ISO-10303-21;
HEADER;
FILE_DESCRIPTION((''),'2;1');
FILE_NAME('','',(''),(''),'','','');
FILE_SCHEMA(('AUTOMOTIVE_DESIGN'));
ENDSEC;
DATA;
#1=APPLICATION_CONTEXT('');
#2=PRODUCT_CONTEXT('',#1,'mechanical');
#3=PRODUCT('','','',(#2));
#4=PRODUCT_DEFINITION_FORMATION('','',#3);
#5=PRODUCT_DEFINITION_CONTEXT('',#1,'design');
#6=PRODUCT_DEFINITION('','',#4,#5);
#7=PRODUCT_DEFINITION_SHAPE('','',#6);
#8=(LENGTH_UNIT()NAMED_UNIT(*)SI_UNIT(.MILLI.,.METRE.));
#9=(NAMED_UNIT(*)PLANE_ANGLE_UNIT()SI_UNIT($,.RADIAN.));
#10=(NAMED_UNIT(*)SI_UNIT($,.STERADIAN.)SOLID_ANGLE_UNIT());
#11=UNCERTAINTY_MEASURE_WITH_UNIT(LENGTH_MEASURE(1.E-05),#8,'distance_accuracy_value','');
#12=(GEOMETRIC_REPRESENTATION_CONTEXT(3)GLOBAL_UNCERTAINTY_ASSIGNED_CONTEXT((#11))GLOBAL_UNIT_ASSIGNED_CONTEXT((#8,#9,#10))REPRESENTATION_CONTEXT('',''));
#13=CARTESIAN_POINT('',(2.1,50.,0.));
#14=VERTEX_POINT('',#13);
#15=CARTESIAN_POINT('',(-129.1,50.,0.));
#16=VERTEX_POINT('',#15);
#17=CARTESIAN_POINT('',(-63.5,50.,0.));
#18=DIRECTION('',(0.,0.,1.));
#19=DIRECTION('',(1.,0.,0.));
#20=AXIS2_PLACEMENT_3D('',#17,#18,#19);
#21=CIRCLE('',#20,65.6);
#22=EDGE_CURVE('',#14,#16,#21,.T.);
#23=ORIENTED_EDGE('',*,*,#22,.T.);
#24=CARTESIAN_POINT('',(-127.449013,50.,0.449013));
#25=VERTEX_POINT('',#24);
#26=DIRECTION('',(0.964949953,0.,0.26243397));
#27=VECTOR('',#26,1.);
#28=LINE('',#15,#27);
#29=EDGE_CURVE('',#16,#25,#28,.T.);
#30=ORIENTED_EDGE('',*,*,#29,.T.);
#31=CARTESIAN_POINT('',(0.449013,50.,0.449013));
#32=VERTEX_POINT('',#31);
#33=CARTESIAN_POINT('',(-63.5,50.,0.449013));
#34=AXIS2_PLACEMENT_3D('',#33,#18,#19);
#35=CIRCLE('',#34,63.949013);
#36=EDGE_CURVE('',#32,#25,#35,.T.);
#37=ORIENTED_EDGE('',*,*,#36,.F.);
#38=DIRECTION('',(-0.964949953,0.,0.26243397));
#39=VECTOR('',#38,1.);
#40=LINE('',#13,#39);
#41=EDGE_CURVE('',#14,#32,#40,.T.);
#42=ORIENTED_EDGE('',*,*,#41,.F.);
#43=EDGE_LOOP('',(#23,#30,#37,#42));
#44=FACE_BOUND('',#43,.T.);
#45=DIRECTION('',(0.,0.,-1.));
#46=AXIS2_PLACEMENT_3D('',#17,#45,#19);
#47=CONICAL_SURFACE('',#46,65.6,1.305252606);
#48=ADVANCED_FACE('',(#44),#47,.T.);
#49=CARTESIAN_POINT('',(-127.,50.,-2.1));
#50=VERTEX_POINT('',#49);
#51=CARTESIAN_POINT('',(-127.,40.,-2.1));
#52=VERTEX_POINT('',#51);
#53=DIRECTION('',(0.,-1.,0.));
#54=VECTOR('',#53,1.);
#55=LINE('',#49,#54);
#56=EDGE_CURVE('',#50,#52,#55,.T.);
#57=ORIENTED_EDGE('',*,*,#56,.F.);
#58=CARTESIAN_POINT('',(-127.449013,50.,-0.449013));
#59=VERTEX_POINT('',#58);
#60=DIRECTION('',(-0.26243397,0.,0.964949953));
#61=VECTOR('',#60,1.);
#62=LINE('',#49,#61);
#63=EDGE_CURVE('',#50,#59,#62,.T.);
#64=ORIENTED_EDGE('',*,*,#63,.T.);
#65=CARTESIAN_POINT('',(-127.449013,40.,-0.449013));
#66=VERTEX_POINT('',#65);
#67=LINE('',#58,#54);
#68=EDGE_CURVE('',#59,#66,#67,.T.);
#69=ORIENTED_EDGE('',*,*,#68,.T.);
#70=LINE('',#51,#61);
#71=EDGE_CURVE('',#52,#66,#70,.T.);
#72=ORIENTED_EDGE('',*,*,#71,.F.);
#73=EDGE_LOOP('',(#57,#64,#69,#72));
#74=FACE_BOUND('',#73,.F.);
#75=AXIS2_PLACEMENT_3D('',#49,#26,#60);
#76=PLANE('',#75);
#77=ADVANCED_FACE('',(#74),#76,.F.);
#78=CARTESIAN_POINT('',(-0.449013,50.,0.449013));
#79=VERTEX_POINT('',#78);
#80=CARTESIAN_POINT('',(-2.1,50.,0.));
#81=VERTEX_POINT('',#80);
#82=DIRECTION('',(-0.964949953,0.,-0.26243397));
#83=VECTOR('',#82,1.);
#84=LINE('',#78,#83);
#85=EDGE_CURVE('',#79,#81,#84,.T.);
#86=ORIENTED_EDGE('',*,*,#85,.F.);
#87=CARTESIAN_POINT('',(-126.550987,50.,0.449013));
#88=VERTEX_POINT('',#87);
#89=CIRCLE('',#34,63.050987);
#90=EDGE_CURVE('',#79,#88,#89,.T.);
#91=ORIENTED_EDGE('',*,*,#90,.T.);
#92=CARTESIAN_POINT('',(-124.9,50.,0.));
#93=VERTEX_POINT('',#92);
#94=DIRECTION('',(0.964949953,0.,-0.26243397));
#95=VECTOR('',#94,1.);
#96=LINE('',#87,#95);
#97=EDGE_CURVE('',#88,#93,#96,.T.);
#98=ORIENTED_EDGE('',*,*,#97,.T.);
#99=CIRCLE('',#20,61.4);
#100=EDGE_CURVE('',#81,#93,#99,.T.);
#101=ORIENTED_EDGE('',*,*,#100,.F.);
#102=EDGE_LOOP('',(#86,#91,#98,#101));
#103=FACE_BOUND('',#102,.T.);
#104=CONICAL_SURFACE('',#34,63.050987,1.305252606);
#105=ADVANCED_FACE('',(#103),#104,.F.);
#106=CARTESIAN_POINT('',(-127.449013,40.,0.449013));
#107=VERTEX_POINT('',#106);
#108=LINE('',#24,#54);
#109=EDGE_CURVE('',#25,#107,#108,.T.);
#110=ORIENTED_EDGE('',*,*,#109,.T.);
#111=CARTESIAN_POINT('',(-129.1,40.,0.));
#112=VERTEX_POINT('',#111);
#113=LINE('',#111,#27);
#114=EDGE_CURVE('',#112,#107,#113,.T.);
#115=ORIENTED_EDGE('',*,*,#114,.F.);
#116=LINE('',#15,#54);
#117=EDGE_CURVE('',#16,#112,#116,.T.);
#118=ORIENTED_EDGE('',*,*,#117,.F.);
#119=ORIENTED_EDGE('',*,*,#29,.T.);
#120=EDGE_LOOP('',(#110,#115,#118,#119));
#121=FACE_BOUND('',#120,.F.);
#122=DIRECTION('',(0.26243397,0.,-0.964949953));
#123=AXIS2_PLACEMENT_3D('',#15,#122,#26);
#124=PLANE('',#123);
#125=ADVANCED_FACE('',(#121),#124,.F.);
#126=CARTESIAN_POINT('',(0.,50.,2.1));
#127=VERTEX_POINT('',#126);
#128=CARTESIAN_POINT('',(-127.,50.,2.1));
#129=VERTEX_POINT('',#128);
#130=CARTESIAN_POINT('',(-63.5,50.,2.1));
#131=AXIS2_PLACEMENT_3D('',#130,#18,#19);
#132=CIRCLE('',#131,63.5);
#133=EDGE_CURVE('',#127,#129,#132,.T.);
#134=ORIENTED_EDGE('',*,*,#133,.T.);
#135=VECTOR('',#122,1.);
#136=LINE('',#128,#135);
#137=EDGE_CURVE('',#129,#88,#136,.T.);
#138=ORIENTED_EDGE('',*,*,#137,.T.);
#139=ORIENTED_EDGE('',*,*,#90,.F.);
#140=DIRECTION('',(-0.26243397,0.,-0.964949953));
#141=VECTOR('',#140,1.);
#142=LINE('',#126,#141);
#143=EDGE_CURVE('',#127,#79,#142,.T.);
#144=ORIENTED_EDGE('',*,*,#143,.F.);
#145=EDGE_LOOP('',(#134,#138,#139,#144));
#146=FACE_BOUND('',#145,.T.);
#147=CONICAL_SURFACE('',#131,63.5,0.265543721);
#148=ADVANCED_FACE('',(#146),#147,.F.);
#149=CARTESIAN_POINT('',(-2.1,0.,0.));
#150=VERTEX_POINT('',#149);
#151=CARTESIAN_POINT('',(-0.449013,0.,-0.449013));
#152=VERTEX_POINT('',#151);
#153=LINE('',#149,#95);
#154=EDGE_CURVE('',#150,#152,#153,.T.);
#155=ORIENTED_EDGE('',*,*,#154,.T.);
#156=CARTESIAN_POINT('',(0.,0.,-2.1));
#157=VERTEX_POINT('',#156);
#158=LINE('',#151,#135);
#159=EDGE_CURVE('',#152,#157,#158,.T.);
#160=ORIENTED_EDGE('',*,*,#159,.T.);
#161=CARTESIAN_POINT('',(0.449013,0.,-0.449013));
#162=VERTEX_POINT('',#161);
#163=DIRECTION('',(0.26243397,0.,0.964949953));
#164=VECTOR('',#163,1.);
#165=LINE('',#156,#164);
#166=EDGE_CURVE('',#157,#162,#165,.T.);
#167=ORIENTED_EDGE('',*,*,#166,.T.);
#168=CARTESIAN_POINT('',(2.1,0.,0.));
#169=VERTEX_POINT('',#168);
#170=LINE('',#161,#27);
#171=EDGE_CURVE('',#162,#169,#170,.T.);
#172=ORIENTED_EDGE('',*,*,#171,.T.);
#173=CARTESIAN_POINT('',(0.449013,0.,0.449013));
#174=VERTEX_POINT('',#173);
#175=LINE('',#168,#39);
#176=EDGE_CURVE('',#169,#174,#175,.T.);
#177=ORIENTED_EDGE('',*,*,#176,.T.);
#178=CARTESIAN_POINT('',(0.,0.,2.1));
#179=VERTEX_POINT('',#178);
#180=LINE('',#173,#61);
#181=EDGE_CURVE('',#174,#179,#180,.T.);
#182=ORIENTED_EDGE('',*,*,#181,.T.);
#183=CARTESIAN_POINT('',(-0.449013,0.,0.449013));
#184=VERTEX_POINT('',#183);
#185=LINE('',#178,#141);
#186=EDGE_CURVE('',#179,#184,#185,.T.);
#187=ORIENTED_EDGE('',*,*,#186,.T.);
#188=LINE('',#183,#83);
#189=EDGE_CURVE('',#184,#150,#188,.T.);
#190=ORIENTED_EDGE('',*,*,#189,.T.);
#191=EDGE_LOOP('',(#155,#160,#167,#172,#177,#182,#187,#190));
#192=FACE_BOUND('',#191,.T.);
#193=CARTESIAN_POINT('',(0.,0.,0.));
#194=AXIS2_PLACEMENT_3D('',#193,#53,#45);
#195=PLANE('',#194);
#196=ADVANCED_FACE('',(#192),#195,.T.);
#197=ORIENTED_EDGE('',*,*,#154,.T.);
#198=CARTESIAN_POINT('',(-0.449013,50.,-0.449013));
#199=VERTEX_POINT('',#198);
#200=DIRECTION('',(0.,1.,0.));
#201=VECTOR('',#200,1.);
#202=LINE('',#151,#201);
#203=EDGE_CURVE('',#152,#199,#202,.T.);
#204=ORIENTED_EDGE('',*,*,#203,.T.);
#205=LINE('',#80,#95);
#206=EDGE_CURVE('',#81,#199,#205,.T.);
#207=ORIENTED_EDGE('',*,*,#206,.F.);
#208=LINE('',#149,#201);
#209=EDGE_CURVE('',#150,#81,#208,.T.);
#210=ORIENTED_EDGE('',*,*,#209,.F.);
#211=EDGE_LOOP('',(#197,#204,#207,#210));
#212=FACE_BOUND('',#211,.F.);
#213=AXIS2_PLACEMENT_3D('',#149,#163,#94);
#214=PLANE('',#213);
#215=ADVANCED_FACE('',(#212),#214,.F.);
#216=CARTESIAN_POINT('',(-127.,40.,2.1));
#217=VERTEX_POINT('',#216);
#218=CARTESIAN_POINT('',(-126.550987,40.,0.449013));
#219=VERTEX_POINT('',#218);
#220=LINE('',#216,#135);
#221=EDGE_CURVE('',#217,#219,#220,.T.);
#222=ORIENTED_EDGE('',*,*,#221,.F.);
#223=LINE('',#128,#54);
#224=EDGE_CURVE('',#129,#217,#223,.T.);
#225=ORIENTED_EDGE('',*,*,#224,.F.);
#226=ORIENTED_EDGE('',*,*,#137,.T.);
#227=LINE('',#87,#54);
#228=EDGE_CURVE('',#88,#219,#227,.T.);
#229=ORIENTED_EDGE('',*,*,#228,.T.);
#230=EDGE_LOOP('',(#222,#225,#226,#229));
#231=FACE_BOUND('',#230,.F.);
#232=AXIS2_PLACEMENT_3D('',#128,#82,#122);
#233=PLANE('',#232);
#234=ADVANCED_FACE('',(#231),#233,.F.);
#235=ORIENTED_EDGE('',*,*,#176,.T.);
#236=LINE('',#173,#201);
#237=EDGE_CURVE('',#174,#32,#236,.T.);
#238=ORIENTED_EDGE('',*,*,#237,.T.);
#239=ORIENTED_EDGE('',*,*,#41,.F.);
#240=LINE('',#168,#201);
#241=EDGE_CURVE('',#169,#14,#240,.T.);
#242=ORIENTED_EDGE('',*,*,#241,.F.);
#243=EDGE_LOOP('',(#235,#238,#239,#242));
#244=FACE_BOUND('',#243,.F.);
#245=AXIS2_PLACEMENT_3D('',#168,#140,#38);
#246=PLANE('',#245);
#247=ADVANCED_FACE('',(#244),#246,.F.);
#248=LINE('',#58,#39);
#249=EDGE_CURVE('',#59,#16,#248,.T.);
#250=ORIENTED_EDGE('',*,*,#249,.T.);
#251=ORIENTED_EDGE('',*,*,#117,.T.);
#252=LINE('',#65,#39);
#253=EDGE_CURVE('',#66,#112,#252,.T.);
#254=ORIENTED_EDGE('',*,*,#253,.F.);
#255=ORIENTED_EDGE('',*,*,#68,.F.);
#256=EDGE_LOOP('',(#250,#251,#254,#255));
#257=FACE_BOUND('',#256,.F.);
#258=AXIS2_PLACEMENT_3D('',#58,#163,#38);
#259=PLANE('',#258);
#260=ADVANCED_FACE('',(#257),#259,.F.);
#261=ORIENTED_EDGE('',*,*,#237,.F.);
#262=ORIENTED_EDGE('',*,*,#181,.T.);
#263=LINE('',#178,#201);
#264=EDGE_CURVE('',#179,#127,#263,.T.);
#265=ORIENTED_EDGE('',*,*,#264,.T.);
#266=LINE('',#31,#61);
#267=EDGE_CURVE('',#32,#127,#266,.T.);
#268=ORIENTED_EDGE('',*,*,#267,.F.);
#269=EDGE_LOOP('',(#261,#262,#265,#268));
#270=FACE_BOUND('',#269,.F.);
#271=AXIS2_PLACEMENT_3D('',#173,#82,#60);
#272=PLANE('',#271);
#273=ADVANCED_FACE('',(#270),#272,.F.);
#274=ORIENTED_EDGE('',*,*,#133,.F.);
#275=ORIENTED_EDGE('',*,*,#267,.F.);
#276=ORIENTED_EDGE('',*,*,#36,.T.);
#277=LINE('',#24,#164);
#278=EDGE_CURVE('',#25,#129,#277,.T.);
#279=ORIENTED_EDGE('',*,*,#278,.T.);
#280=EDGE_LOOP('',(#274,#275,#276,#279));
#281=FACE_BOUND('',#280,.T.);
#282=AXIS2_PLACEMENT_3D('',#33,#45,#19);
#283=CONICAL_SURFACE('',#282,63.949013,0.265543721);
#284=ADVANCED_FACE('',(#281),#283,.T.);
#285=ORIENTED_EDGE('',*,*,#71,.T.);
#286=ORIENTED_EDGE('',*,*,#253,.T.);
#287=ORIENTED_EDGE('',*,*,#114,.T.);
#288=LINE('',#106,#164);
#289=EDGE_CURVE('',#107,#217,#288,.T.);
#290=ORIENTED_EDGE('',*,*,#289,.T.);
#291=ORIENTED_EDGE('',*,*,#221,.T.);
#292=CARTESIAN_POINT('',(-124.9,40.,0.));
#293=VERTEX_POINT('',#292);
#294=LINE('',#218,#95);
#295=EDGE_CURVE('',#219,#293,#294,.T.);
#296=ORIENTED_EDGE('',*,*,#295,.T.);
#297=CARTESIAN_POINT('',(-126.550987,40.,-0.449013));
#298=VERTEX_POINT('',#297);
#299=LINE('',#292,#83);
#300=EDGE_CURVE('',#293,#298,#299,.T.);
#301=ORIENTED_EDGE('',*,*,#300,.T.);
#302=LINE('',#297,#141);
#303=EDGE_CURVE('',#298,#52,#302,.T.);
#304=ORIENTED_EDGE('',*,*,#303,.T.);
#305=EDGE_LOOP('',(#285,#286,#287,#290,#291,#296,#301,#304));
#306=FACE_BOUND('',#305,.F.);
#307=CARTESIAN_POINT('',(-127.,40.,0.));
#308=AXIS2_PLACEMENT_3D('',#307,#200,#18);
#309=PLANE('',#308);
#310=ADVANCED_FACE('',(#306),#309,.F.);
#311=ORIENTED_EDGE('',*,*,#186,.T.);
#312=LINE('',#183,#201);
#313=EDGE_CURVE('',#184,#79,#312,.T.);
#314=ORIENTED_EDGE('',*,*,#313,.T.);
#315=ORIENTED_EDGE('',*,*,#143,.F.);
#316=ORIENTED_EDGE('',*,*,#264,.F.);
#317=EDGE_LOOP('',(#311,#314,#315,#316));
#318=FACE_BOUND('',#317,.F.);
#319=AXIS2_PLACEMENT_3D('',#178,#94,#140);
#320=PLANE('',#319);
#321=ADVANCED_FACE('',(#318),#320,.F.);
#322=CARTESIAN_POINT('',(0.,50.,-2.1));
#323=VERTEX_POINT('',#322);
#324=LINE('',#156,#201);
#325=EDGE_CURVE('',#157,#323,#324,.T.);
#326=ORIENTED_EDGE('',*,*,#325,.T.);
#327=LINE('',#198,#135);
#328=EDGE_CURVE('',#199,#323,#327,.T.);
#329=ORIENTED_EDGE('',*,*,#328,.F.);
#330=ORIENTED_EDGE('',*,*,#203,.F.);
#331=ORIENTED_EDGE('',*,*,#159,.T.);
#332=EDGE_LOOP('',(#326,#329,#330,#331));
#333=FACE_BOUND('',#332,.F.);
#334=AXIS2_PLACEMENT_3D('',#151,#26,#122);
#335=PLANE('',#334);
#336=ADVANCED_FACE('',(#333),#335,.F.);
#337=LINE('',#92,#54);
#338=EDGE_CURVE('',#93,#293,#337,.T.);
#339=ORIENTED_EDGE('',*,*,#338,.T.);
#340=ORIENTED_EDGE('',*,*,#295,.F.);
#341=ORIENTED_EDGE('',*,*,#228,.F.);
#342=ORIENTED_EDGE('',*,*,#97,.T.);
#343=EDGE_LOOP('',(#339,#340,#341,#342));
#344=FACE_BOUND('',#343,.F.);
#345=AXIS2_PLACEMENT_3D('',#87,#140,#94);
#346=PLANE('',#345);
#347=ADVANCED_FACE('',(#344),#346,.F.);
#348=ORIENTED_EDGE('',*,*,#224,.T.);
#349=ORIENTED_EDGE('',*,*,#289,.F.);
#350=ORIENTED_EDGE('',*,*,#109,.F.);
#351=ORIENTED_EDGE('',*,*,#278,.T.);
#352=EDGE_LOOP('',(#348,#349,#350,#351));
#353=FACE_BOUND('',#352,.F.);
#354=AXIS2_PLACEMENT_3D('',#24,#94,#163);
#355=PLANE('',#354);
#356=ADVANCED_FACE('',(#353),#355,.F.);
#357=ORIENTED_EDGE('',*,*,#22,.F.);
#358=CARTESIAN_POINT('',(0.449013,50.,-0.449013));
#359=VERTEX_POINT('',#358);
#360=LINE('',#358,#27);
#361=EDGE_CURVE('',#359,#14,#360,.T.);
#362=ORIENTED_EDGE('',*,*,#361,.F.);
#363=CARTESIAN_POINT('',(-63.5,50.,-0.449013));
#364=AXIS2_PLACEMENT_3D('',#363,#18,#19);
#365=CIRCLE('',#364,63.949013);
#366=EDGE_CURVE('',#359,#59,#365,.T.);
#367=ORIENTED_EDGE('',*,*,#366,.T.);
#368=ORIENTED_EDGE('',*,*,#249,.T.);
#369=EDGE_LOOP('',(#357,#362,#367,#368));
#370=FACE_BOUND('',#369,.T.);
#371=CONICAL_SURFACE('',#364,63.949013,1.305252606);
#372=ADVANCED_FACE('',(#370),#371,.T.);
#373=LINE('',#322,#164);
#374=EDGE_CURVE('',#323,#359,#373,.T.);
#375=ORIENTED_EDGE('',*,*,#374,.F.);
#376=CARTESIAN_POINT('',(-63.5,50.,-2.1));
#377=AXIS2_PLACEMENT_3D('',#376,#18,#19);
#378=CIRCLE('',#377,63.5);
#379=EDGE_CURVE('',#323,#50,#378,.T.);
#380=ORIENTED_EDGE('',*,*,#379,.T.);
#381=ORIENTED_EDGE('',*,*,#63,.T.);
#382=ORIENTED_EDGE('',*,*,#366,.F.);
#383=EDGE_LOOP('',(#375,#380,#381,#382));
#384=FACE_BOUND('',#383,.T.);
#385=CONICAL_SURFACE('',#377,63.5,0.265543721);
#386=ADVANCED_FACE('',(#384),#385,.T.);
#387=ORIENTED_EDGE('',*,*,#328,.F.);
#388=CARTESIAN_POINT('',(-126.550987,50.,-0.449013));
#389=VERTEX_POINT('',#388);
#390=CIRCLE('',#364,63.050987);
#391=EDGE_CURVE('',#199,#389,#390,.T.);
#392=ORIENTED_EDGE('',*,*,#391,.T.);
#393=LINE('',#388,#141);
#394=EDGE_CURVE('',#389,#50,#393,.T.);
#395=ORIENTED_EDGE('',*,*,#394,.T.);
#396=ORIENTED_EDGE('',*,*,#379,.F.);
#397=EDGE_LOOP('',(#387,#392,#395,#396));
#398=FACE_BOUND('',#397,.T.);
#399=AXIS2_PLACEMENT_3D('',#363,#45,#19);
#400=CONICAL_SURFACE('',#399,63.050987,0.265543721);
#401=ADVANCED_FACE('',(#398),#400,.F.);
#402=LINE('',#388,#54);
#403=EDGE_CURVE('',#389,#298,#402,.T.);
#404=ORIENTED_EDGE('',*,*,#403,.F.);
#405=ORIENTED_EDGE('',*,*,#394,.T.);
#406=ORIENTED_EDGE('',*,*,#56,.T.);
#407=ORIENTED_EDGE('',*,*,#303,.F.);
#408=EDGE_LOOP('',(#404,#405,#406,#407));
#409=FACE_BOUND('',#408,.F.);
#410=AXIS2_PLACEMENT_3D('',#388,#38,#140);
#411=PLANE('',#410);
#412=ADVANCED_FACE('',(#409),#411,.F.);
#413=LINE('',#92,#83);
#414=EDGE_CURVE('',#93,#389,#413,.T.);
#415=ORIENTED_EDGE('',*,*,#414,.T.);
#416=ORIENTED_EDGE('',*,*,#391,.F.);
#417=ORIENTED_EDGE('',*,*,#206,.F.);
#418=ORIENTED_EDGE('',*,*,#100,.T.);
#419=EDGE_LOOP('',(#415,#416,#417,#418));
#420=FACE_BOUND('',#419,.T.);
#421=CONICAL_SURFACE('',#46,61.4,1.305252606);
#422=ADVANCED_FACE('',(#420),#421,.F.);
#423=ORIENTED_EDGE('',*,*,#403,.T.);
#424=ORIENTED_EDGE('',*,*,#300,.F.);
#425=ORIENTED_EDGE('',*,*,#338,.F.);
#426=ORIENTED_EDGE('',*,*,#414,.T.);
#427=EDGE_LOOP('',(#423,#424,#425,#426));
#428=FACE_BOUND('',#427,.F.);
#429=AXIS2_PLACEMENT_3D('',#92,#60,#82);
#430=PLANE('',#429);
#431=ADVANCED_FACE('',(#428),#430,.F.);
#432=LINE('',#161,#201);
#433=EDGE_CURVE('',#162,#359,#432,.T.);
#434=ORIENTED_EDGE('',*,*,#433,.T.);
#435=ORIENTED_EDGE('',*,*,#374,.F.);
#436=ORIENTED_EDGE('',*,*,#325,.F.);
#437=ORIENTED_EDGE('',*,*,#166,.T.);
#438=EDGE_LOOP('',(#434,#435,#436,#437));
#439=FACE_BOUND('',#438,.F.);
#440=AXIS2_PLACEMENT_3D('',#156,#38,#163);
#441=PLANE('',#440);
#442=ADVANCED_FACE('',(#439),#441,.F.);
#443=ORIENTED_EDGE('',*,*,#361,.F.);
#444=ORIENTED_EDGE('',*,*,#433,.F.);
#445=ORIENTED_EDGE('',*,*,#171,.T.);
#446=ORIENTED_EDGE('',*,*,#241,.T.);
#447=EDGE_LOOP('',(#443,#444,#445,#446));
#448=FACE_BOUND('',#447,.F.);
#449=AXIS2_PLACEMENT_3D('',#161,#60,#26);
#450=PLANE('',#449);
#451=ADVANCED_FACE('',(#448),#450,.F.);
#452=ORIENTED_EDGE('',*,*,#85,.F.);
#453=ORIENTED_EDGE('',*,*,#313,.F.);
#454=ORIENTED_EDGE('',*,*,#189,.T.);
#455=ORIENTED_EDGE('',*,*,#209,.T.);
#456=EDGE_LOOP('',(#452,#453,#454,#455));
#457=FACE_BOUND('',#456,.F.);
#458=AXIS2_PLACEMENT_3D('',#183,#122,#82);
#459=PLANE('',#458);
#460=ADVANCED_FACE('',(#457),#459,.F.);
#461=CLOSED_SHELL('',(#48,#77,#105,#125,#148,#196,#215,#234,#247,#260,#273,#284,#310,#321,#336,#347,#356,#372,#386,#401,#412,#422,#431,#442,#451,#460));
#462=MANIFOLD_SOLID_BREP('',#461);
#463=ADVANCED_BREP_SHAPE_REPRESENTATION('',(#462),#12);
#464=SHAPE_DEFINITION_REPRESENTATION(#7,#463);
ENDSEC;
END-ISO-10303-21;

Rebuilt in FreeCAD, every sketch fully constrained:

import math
import FreeCAD as App
import Part
import Sketcher

V = App.Vector
Q = App.Units.Quantity

doc = App.newDocument("Part")
params = doc.addObject("Spreadsheet::Sheet", "Params")
for row, (alias, value) in enumerate([
    ("sketch2_radius", "63.5 mm"),
    ("sketch2_height", "50 mm"),
    ("sketch2_height2", "10 mm"),
], start=1):
    params.set(f"A{row}", alias)
    params.set(f"B{row}", "=" + value)
    params.setAlias(f"B{row}", alias)

body = doc.addObject("PartDesign::Body", "Body")

sketch1 = body.newObject("Sketcher::SketchObject", "Sketch")
sketch1.AttachmentSupport = (doc.getObject("XZ_Plane"), [""])
sketch1.MapMode = "FlatFace"
sketch1.addGeometry(Part.LineSegment(V(2.1, 0, 0), V(0.4, 0.4, 0)), False)
sketch1.addGeometry(Part.LineSegment(V(0.4, 0.4, 0), V(0, 2.1, 0)), False)
sketch1.addGeometry(Part.LineSegment(V(0, 2.1, 0), V(-0.4, 0.4, 0)), False)
sketch1.addGeometry(Part.LineSegment(V(-0.4, 0.4, 0), V(-2.1, 0, 0)), False)
sketch1.addGeometry(Part.LineSegment(V(-2.1, 0, 0), V(-0.4, -0.4, 0)), False)
sketch1.addGeometry(Part.LineSegment(V(-0.4, -0.4, 0), V(0, -2.1, 0)), False)
sketch1.addGeometry(Part.LineSegment(V(0, -2.1, 0), V(0.4, -0.4, 0)), False)
sketch1.addGeometry(Part.LineSegment(V(0.4, -0.4, 0), V(2.1, 0, 0)), False)
sketch1.addConstraint(Sketcher.Constraint("Coincident", 0, 2, 1, 1))
sketch1.addConstraint(Sketcher.Constraint("Coincident", 1, 2, 2, 1))
sketch1.addConstraint(Sketcher.Constraint("Coincident", 2, 2, 3, 1))
sketch1.addConstraint(Sketcher.Constraint("Coincident", 3, 2, 4, 1))
sketch1.addConstraint(Sketcher.Constraint("Coincident", 4, 2, 5, 1))
sketch1.addConstraint(Sketcher.Constraint("Coincident", 5, 2, 6, 1))
sketch1.addConstraint(Sketcher.Constraint("Coincident", 6, 2, 7, 1))
sketch1.addConstraint(Sketcher.Constraint("Coincident", 7, 2, 0, 1))
sketch1.addConstraint(Sketcher.Constraint("Symmetric", 0, 2, 4, 2, -1, 1))
sketch1.addConstraint(Sketcher.Constraint("Symmetric", 1, 2, 5, 2, -1, 1))
sketch1.addConstraint(Sketcher.Constraint("Symmetric", 2, 2, 6, 2, -1, 1))
sketch1.addConstraint(Sketcher.Constraint("Symmetric", 3, 2, 7, 2, -1, 1))
sketch1.addConstraint(Sketcher.Constraint("Symmetric", 0, 2, 2, 2, -2))
sketch1.addConstraint(Sketcher.Constraint("PointOnObject", 1, 2, -2))
sketch1.addConstraint(Sketcher.Constraint("PointOnObject", 3, 2, -1))
sketch1.addConstraint(Sketcher.Constraint("Perpendicular", 0, 2))
sketch1.addConstraint(Sketcher.Constraint("Equal", 0, 1))
sketch1.addConstraint(Sketcher.Constraint("DistanceY", -1, 1, 1, 2, Q("2.1 mm")))
sketch1.addConstraint(Sketcher.Constraint("Distance", 0, Q("1.710956 mm")))

sketch2 = body.newObject("Sketcher::SketchObject", "Sketch001")
sketch2.AttachmentSupport = (doc.getObject("XY_Plane"), [""])
sketch2.MapMode = "FlatFace"
sketch2.addGeometry(Part.LineSegment(V(0, 0, 0), V(0, 50, 0)), False)
sketch2.addGeometry(Part.ArcOfCircle(Part.Circle(V(-64, 50, 0), V(0, 0, 1), 64), math.radians(0), math.radians(180)), False)
sketch2.addGeometry(Part.LineSegment(V(-127, 50, 0), V(-127, 40, 0)), False)
sketch2.addConstraint(Sketcher.Constraint("Tangent", 0, 2, 1, 1))
sketch2.addConstraint(Sketcher.Constraint("Tangent", 1, 2, 2, 1))
sketch2.addConstraint(Sketcher.Constraint("Vertical", 0))
sketch2.addConstraint(Sketcher.Constraint("Vertical", 2))
sketch2.addConstraint(Sketcher.Constraint("Coincident", 0, 1, -1, 1))
sketch2.addConstraint(Sketcher.Constraint("Radius", 1, Q("63.5 mm")))
sketch2.addConstraint(Sketcher.Constraint("DistanceY", 0, 1, 0, 2, Q("50 mm")))
sketch2.addConstraint(Sketcher.Constraint("DistanceY", 2, 2, 2, 1, Q("10 mm")))
sketch2.setExpression("Constraints[5]", "Params.sketch2_radius")
sketch2.setExpression("Constraints[6]", "Params.sketch2_height")
sketch2.setExpression("Constraints[7]", "Params.sketch2_height2")
doc.recompute()

additivepipe = body.newObject("PartDesign::AdditivePipe", "AdditivePipe")
additivepipe.Profile = sketch1
additivepipe.Spine = (sketch2, ["Edge1", "Edge2", "Edge3"])

doc.recompute()
